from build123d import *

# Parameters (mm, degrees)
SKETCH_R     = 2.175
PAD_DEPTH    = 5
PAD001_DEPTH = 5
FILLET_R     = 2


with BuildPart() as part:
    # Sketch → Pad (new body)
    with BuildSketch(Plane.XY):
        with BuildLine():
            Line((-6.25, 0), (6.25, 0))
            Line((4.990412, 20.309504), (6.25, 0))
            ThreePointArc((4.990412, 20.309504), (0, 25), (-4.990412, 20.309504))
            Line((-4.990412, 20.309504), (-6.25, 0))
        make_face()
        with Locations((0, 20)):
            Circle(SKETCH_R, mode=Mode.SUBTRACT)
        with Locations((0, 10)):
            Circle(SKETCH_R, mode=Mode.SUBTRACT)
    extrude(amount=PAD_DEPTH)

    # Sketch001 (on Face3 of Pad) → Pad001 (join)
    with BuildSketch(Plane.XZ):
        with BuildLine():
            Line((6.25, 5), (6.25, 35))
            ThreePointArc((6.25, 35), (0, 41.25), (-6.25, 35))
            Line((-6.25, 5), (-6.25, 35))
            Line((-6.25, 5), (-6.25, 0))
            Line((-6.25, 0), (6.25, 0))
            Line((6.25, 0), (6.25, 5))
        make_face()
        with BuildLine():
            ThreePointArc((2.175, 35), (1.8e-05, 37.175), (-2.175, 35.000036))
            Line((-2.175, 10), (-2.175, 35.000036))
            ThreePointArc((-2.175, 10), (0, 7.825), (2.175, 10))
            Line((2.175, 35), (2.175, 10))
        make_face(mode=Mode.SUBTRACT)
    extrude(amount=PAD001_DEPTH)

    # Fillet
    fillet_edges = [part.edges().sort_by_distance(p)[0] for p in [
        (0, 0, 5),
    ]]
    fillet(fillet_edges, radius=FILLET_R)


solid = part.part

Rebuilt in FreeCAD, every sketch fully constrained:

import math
import FreeCAD as App
import Part
import Sketcher

V = App.Vector
Q = App.Units.Quantity


def edges_at(feature, points):
    """Names of the edges that pass closest to the given points."""
    edges = feature.Shape.Edges
    near = lambda p: min(range(len(edges)), key=lambda i: edges[i].distToShape(Part.Vertex(*p))[0])
    return sorted({f"Edge{near(p) + 1}" for p in points})

doc = App.newDocument("Part")
body = doc.addObject("PartDesign::Body", "Body")

sketch1 = body.newObject("Sketcher::SketchObject", "Sketch")
sketch1.AttachmentSupport = (doc.getObject("XY_Plane"), [""])
sketch1.MapMode = "FlatFace"
sketch1.addGeometry([
    Part.LineSegment(V(-6.2, 0, 0), V(6.2, 0, 0)),
    Part.LineSegment(V(6.2, 0, 0), V(5, 20.3, 0)),
    Part.ArcOfCircle(Part.Circle(V(0, 20, 0), V(0, 0, 1), 5), math.radians(4), math.radians(176)),
    Part.LineSegment(V(-5, 20.3, 0), V(-6.2, 0, 0)),
    Part.Circle(V(0, 10, 0), V(0, 0, 1), 2.2),
    Part.Circle(V(0, 20, 0), V(0, 0, 1), 2.2),
], False)
sketch1.addConstraint([
    Sketcher.Constraint("Coincident", 0, 2, 1, 1),
    Sketcher.Constraint("Tangent", 1, 2, 2, 1),
    Sketcher.Constraint("Tangent", 2, 2, 3, 1),
    Sketcher.Constraint("Coincident", 3, 2, 0, 1),
    Sketcher.Constraint("Horizontal", 0),
    Sketcher.Constraint("Coincident", 5, 3, 2, 3),
    Sketcher.Constraint("Equal", 4, 5),
    Sketcher.Constraint("Symmetric", 0, 2, 3, 2, -1, 1),
    Sketcher.Constraint("PointOnObject", 2, 3, -2),
    Sketcher.Constraint("PointOnObject", 4, 3, -2),
    Sketcher.Constraint("Radius", 2, Q("5 mm")),
    Sketcher.Constraint("Diameter", 4, Q("4.35 mm")),
    Sketcher.Constraint("DistanceX", 0, 1, 0, 2, Q("12.5 mm")),
    Sketcher.Constraint("DistanceY", -1, 1, 2, 3, Q("20 mm")),
    Sketcher.Constraint("DistanceY", -1, 1, 4, 3, Q("10 mm")),
])
pad1 = body.newObject("PartDesign::Pad", "Pad")
pad1.Profile = sketch1
pad1.Length = 5

sketch2 = body.newObject("Sketcher::SketchObject", "Sketch001")
sketch2.AttachmentSupport = (doc.getObject("XZ_Plane"), [""])
sketch2.MapMode = "FlatFace"
sketch2.addGeometry([
    Part.ArcOfCircle(Part.Circle(V(0, 35, 0), V(0, 0, 1), 6.2), math.radians(0), math.radians(180)),
    Part.LineSegment(V(-6.2, 35, 0), V(-6.2, 0, 0)),
    Part.LineSegment(V(-6.2, 0, 0), V(6.2, 0, 0)),
    Part.LineSegment(V(6.2, 0, 0), V(6.2, 35, 0)),
    Part.ArcOfCircle(Part.Circle(V(0, 35, 0), V(0, 0, 1), 2.2), math.radians(0), math.radians(180)),
    Part.LineSegment(V(2.2, 35, 0), V(2.2, 10, 0)),
    Part.ArcOfCircle(Part.Circle(V(0, 10, 0), V(0, 0, 1), 2.2), math.radians(180), math.radians(360)),
    Part.LineSegment(V(-2.2, 10, 0), V(-2.2, 35, 0)),
], False)
sketch2.addConstraint([
    Sketcher.Constraint("Tangent", 0, 2, 1, 1),
    Sketcher.Constraint("Coincident", 1, 2, 2, 1),
    Sketcher.Constraint("Coincident", 2, 2, 3, 1),
    Sketcher.Constraint("Tangent", 3, 2, 0, 1),
    Sketcher.Constraint("Tangent", 4, 1, 5, 1),
    Sketcher.Constraint("Tangent", 5, 2, 6, 2),
    Sketcher.Constraint("Tangent", 6, 1, 7, 1),
    Sketcher.Constraint("Coincident", 7, 2, 4, 2),
    Sketcher.Constraint("Vertical", 1),
    Sketcher.Constraint("Horizontal", 2),
    Sketcher.Constraint("Vertical", 3),
    Sketcher.Constraint("Vertical", 5),
    Sketcher.Constraint("Vertical", 7),
    Sketcher.Constraint("Coincident", 4, 3, 0, 3),
    Sketcher.Constraint("Symmetric", 1, 2, 2, 2, -1, 1),
    Sketcher.Constraint("DistanceY", 1, 2, 1, 1, Q("35 mm")),
    Sketcher.Constraint("DistanceY", 5, 2, 5, 1, Q("25 mm")),
    Sketcher.Constraint("Radius", 0, Q("6.25 mm")),
    Sketcher.Constraint("Radius", 4, Q("2.175 mm")),
    Sketcher.Constraint("DistanceY", 7, 1, 7, 2, Q("25.000036 mm")),
])
pad2 = body.newObject("PartDesign::Pad", "Pad001")
pad2.Profile = sketch2
pad2.Length = 5
doc.recompute()

fillet = body.newObject("PartDesign::Fillet", "Fillet")
fillet.Base = (pad2, edges_at(pad2, [(0, 0, 5)]))
fillet.Radius = 2

doc.recompute()
